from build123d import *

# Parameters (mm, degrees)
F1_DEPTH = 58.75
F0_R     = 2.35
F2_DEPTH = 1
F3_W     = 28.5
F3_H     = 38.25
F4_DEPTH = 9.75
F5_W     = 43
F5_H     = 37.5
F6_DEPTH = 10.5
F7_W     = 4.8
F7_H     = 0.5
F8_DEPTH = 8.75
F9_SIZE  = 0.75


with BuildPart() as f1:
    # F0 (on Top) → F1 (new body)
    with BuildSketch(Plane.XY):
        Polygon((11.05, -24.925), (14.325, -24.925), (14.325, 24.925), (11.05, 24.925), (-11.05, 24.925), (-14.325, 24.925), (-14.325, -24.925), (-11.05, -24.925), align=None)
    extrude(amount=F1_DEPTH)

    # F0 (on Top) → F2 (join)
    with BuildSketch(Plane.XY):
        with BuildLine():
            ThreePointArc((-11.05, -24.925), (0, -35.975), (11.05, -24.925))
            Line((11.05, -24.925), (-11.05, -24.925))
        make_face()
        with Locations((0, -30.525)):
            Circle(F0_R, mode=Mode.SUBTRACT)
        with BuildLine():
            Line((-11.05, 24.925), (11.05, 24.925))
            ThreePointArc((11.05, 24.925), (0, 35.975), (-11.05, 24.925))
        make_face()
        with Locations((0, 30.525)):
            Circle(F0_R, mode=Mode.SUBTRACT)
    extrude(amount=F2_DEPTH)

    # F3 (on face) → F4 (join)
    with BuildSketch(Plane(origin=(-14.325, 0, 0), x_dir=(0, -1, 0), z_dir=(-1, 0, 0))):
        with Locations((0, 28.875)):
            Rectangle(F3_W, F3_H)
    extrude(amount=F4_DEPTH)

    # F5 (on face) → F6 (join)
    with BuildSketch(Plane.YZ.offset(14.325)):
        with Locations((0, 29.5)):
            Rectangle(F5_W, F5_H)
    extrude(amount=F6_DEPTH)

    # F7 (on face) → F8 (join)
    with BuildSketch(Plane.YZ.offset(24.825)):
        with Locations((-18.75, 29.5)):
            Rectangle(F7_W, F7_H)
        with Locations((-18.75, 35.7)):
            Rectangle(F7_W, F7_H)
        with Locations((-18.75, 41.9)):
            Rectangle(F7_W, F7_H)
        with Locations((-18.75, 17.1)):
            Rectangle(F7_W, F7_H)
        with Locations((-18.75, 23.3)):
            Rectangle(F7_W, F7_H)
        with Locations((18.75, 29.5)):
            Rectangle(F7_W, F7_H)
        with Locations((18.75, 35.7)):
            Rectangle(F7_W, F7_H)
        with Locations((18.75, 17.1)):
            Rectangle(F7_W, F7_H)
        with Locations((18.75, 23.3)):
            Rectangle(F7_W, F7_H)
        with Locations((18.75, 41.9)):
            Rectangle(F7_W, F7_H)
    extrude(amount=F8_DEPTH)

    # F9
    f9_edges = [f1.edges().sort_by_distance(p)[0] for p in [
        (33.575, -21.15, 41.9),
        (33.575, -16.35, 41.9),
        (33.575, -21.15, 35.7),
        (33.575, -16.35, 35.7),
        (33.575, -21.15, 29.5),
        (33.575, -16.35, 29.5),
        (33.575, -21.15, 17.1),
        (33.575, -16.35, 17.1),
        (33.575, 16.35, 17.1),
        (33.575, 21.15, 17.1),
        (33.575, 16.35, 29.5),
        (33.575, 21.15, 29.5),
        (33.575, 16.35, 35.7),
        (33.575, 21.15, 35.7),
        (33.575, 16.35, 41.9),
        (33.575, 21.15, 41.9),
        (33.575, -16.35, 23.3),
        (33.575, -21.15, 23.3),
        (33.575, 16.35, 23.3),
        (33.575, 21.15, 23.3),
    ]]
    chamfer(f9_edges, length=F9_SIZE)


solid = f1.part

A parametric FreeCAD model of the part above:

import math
import FreeCAD as App
import Part
import Sketcher
from FreeCAD import Vector
Q = App.Units.Quantity


def edges_at(feature, points):
    """Names of the edges that pass closest to the given points."""
    edges = feature.Shape.Edges
    near = lambda p: min(range(len(edges)), key=lambda i: edges[i].distToShape(Part.Vertex(*p))[0])
    return sorted({f"Edge{near(p) + 1}" for p in points})

doc = App.newDocument("Part")
body = doc.addObject("PartDesign::Body", "Body")

# Sketch on XY plane
sketch1 = body.newObject("Sketcher::SketchObject", "Sketch")
sketch1.AttachmentSupport = (doc.getObject("XY_Plane"), [""])
sketch1.MapMode = "FlatFace"
sketch1.addGeometry([
    Part.LineSegment(Vector(14, -25, 0), Vector(14, 25, 0)),
    Part.LineSegment(Vector(14, 25, 0), Vector(-14, 25, 0)),
    Part.LineSegment(Vector(-14, 25, 0), Vector(-14, -25, 0)),
    Part.LineSegment(Vector(-14, -25, 0), Vector(14, -25, 0)),
], False)
sketch1.addConstraint([
    Sketcher.Constraint("Coincident", 0, 2, 1, 1),
    Sketcher.Constraint("Coincident", 1, 2, 2, 1),
    Sketcher.Constraint("Coincident", 2, 2, 3, 1),
    Sketcher.Constraint("Coincident", 3, 2, 0, 1),
    Sketcher.Constraint("Vertical", 0),
    Sketcher.Constraint("Horizontal", 1),
    Sketcher.Constraint("Vertical", 2),
    Sketcher.Constraint("Horizontal", 3),
    Sketcher.Constraint("Symmetric", 0, 2, 2, 2, -1, 1),
    Sketcher.Constraint("DistanceX", 1, 2, 1, 1, Q("28.65 mm")),
    Sketcher.Constraint("DistanceY", 0, 1, 0, 2, Q("49.85 mm")),
])
pad1 = body.newObject("PartDesign::Pad", "Pad")
pad1.Profile = sketch1
pad1.Length = 58.75

# Sketch on XY plane
sketch2 = body.newObject("Sketcher::SketchObject", "Sketch001")
sketch2.AttachmentSupport = (doc.getObject("XY_Plane"), [""])
sketch2.MapMode = "FlatFace"
sketch2.addGeometry([
    Part.ArcOfCircle(Part.Circle(Vector(0, -24.9, 0), Vector(0, 0, 1), 11.1), math.radians(180), math.radians(360)),  # 0
    Part.LineSegment(Vector(11.1, -24.9, 0), Vector(-11.1, -24.9, 0)),  # 1
    Part.Circle(Vector(0, -30.5, 0), Vector(0, 0, 1), 2.4),  # 2
    Part.LineSegment(Vector(-11.1, 24.9, 0), Vector(11.1, 24.9, 0)),  # 3
    Part.ArcOfCircle(Part.Circle(Vector(0, 24.9, 0), Vector(0, 0, 1), 11.1), math.radians(0), math.radians(180)),  # 4
    Part.Circle(Vector(0, 30.5, 0), Vector(0, 0, 1), 2.4),  # 5
], False)
sketch2.addConstraint([
    Sketcher.Constraint("Coincident", 0, 1, 1, 2),
    Sketcher.Constraint("Coincident", 1, 1, 0, 2),
    Sketcher.Constraint("Coincident", 3, 1, 4, 2),
    Sketcher.Constraint("Coincident", 4, 1, 3, 2),
    Sketcher.Constraint("Horizontal", 1),
    Sketcher.Constraint("Horizontal", 3),
    Sketcher.Constraint("Equal", 0, 4),
    Sketcher.Constraint("Equal", 2, 5),
    Sketcher.Constraint("Symmetric", 0, 3, 4, 3, -1, 1),
    Sketcher.Constraint("Symmetric", 2, 3, 5, 3, -1, 1),
    Sketcher.Constraint("Symmetric", 0, 1, 3, 1, -1),
    Sketcher.Constraint("PointOnObject", 2, 3, -2),
    Sketcher.Constraint("Horizontal", 4, 3, 3, 1),
    Sketcher.Constraint("Diameter", 2, Q("4.7 mm")),
    Sketcher.Constraint("Radius", 0, Q("11.05 mm")),
    Sketcher.Constraint("DistanceY", 2, 3, 0, 3, Q("5.6 mm")),
    Sketcher.Constraint("DistanceY", 0, 3, 4, 3, Q("49.85 mm")),
])
pad2 = body.newObject("PartDesign::Pad", "Pad001")
pad2.Profile = sketch2
pad2.Length = 1

# Sketch on YZ plane
sketch3 = body.newObject("Sketcher::SketchObject", "Sketch002")
sketch3.AttachmentSupport = (doc.getObject("YZ_Plane"), [""])
sketch3.MapMode = "FlatFace"
sketch3.AttachmentOffset = App.Placement(Vector(0, 0, -14.325), App.Rotation())
sketch3.addGeometry([
    Part.LineSegment(Vector(14, 48, 0), Vector(14, 10, 0)),
    Part.LineSegment(Vector(14, 10, 0), Vector(-14, 10, 0)),
    Part.LineSegment(Vector(-14, 10, 0), Vector(-14, 48, 0)),
    Part.LineSegment(Vector(-14, 48, 0), Vector(14, 48, 0)),
], False)
sketch3.addConstraint([
    Sketcher.Constraint("Coincident", 0, 2, 1, 1),
    Sketcher.Constraint("Coincident", 1, 2, 2, 1),
    Sketcher.Constraint("Coincident", 2, 2, 3, 1),
    Sketcher.Constraint("Coincident", 3, 2, 0, 1),
    Sketcher.Constraint("Vertical", 0),
    Sketcher.Constraint("Horizontal", 1),
    Sketcher.Constraint("Vertical", 2),
    Sketcher.Constraint("Horizontal", 3),
    Sketcher.Constraint("DistanceX", 1, 2, 1, 1, Q("28.5 mm")),
    Sketcher.Constraint("DistanceY", -1, 1, 2, 2, Q("48 mm")),
    Sketcher.Constraint("DistanceY", 0, 2, 0, 1, Q("38.25 mm")),
    Sketcher.Constraint("DistanceX", -1, 1, 0, 2, Q("14.25 mm")),
])
pad3 = body.newObject("PartDesign::Pad", "Pad002")
pad3.Profile = sketch3
pad3.Length = 9.75
pad3.Reversed = True

# Sketch on YZ plane
sketch4 = body.newObject("Sketcher::SketchObject", "Sketch003")
sketch4.AttachmentSupport = (doc.getObject("YZ_Plane"), [""])
sketch4.MapMode = "FlatFace"
sketch4.AttachmentOffset = App.Placement(Vector(0, 0, 14.325), App.Rotation())
sketch4.addGeometry([
    Part.LineSegment(Vector(-22, 48, 0), Vector(-22, 11, 0)),
    Part.LineSegment(Vector(-22, 11, 0), Vector(22, 11, 0)),
    Part.LineSegment(Vector(22, 11, 0), Vector(22, 48, 0)),
    Part.LineSegment(Vector(22, 48, 0), Vector(-22, 48, 0)),
], False)
sketch4.addConstraint([
    Sketcher.Constraint("Coincident", 0, 2, 1, 1),
    Sketcher.Constraint("Coincident", 1, 2, 2, 1),
    Sketcher.Constraint("Coincident", 2, 2, 3, 1),
    Sketcher.Constraint("Coincident", 3, 2, 0, 1),
    Sketcher.Constraint("Vertical", 0),
    Sketcher.Constraint("Horizontal", 1),
    Sketcher.Constraint("Vertical", 2),
    Sketcher.Constraint("Horizontal", 3),
    Sketcher.Constraint("DistanceX", 1, 1, 1, 2, Q("43 mm")),
    Sketcher.Constraint("DistanceY", 0, 2, 0, 1, Q("37.5 mm")),
    Sketcher.Constraint("DistanceX", 0, 2, -1, 1, Q("21.5 mm")),
    Sketcher.Constraint("DistanceY", -1, 1, 0, 2, Q("10.75 mm")),
])
pad4 = body.newObject("PartDesign::Pad", "Pad003")
pad4.Profile = sketch4
pad4.Length = 10.5

# Sketch on YZ plane
sketch5 = body.newObject("Sketcher::SketchObject", "Sketch004")
sketch5.AttachmentSupport = (doc.getObject("YZ_Plane"), [""])
sketch5.MapMode = "FlatFace"
sketch5.AttachmentOffset = App.Placement(Vector(0, 0, 24.825), App.Rotation())
sketch5.addGeometry([
    Part.LineSegment(Vector(-21.1, 29.8, 0), Vector(-21.1, 29.2, 0)),  # 0
    Part.LineSegment(Vector(-21.1, 29.2, 0), Vector(-16.4, 29.2, 0)),  # 1
    Part.LineSegment(Vector(-16.4, 29.2, 0), Vector(-16.4, 29.8, 0)),  # 2
    Part.LineSegment(Vector(-16.4, 29.8, 0), Vector(-21.1, 29.8, 0)),  # 3
    Part.LineSegment(Vector(-21.1, 36, 0), Vector(-21.1, 35.5, 0)),  # 4
    Part.LineSegment(Vector(-21.1, 35.5, 0), Vector(-16.4, 35.5, 0)),  # 5
    Part.LineSegment(Vector(-16.4, 35.5, 0), Vector(-16.4, 36, 0)),  # 6
    Part.LineSegment(Vector(-16.4, 36, 0), Vector(-21.1, 36, 0)),  # 7
    Part.LineSegment(Vector(-21.1, 42.1, 0), Vector(-21.1, 41.6, 0)),  # 8
    Part.LineSegment(Vector(-21.1, 41.6, 0), Vector(-16.4, 41.6, 0)),  # 9
    Part.LineSegment(Vector(-16.4, 41.6, 0), Vector(-16.4, 42.1, 0)),  # 10
    Part.LineSegment(Vector(-16.4, 42.1, 0), Vector(-21.1, 42.1, 0)),  # 11
    Part.LineSegment(Vector(-21.1, 17.4, 0), Vector(-21.1, 16.9, 0)),  # 12
    Part.LineSegment(Vector(-21.1, 16.9, 0), Vector(-16.4, 16.9, 0)),  # 13
    Part.LineSegment(Vector(-16.4, 16.9, 0), Vector(-16.4, 17.4, 0)),  # 14
    Part.LineSegment(Vector(-16.4, 17.4, 0), Vector(-21.1, 17.4, 0)),  # 15
    Part.LineSegment(Vector(-21.1, 23.6, 0), Vector(-21.1, 23.1, 0)),  # 16
    Part.LineSegment(Vector(-21.1, 23.1, 0), Vector(-16.4, 23.1, 0)),  # 17
    Part.LineSegment(Vector(-16.4, 23.1, 0), Vector(-16.4, 23.6, 0)),  # 18
    Part.LineSegment(Vector(-16.4, 23.6, 0), Vector(-21.1, 23.6, 0)),  # 19
    Part.LineSegment(Vector(16.4, 29.8, 0), Vector(16.4, 29.2, 0)),  # 20
    Part.LineSegment(Vector(16.4, 29.2, 0), Vector(21.1, 29.2, 0)),  # 21
    Part.LineSegment(Vector(21.1, 29.2, 0), Vector(21.1, 29.8, 0)),  # 22
    Part.LineSegment(Vector(21.1, 29.8, 0), Vector(16.4, 29.8, 0)),  # 23
    Part.LineSegment(Vector(16.4, 36, 0), Vector(16.4, 35.5, 0)),  # 24
    Part.LineSegment(Vector(16.4, 35.5, 0), Vector(21.1, 35.5, 0)),  # 25
    Part.LineSegment(Vector(21.1, 35.5, 0), Vector(21.1, 36, 0)),  # 26
    Part.LineSegment(Vector(21.1, 36, 0), Vector(16.4, 36, 0)),  # 27
    Part.LineSegment(Vector(16.4, 17.4, 0), Vector(16.4, 16.9, 0)),  # 28
    Part.LineSegment(Vector(16.4, 16.9, 0), Vector(21.1, 16.9, 0)),  # 29
    Part.LineSegment(Vector(21.1, 16.9, 0), Vector(21.1, 17.4, 0)),  # 30
    Part.LineSegment(Vector(21.1, 17.4, 0), Vector(16.4, 17.4, 0)),  # 31
    Part.LineSegment(Vector(16.4, 23.6, 0), Vector(16.4, 23.1, 0)),  # 32
    Part.LineSegment(Vector(16.4, 23.1, 0), Vector(21.1, 23.1, 0)),  # 33
    Part.LineSegment(Vector(21.1, 23.1, 0), Vector(21.1, 23.6, 0)),  # 34
    Part.LineSegment(Vector(21.1, 23.6, 0), Vector(16.4, 23.6, 0)),  # 35
    Part.LineSegment(Vector(16.4, 42.1, 0), Vector(16.4, 41.6, 0)),  # 36
    Part.LineSegment(Vector(16.4, 41.6, 0), Vector(21.1, 41.6, 0)),  # 37
    Part.LineSegment(Vector(21.1, 41.6, 0), Vector(21.1, 42.1, 0)),  # 38
    Part.LineSegment(Vector(21.1, 42.1, 0), Vector(16.4, 42.1, 0)),  # 39
], False)
sketch5.addConstraint([
    Sketcher.Constraint("Coincident", 0, 2, 1, 1),
    Sketcher.Constraint("Coincident", 1, 2, 2, 1),
    Sketcher.Constraint("Coincident", 2, 2, 3, 1),
    Sketcher.Constraint("Coincident", 3, 2, 0, 1),
    Sketcher.Constraint("Coincident", 4, 2, 5, 1),
    Sketcher.Constraint("Coincident", 5, 2, 6, 1),
    Sketcher.Constraint("Coincident", 6, 2, 7, 1),
    Sketcher.Constraint("Coincident", 7, 2, 4, 1),
    Sketcher.Constraint("Coincident", 8, 2, 9, 1),
    Sketcher.Constraint("Coincident", 9, 2, 10, 1),
    Sketcher.Constraint("Coincident", 10, 2, 11, 1),
    Sketcher.Constraint("Coincident", 11, 2, 8, 1),
    Sketcher.Constraint("Coincident", 12, 2, 13, 1),
    Sketcher.Constraint("Coincident", 13, 2, 14, 1),
    Sketcher.Constraint("Coincident", 14, 2, 15, 1),
    Sketcher.Constraint("Coincident", 15, 2, 12, 1),
    Sketcher.Constraint("Coincident", 16, 2, 17, 1),
    Sketcher.Constraint("Coincident", 17, 2, 18, 1),
    Sketcher.Constraint("Coincident", 18, 2, 19, 1),
    Sketcher.Constraint("Coincident", 19, 2, 16, 1),
    Sketcher.Constraint("Coincident", 20, 2, 21, 1),
    Sketcher.Constraint("Coincident", 21, 2, 22, 1),
    Sketcher.Constraint("Coincident", 22, 2, 23, 1),
    Sketcher.Constraint("Coincident", 23, 2, 20, 1),
    Sketcher.Constraint("Coincident", 24, 2, 25, 1),
    Sketcher.Constraint("Coincident", 25, 2, 26, 1),
    Sketcher.Constraint("Coincident", 26, 2, 27, 1),
    Sketcher.Constraint("Coincident", 27, 2, 24, 1),
    Sketcher.Constraint("Coincident", 28, 2, 29, 1),
    Sketcher.Constraint("Coincident", 29, 2, 30, 1),
    Sketcher.Constraint("Coincident", 30, 2, 31, 1),
    Sketcher.Constraint("Coincident", 31, 2, 28, 1),
    Sketcher.Constraint("Coincident", 32, 2, 33, 1),
    Sketcher.Constraint("Coincident", 33, 2, 34, 1),
    Sketcher.Constraint("Coincident", 34, 2, 35, 1),
    Sketcher.Constraint("Coincident", 35, 2, 32, 1),
    Sketcher.Constraint("Coincident", 36, 2, 37, 1),
    Sketcher.Constraint("Coincident", 37, 2, 38, 1),
    Sketcher.Constraint("Coincident", 38, 2, 39, 1),
    Sketcher.Constraint("Coincident", 39, 2, 36, 1),
    Sketcher.Constraint("Vertical", 0),
    Sketcher.Constraint("Horizontal", 1),
    Sketcher.Constraint("Vertical", 2),
    Sketcher.Constraint("Horizontal", 3),
    Sketcher.Constraint("Vertical", 4),
    Sketcher.Constraint("Horizontal", 5),
    Sketcher.Constraint("Vertical", 6),
    Sketcher.Constraint("Horizontal", 7),
    Sketcher.Constraint("Vertical", 8),
    Sketcher.Constraint("Horizontal", 9),
    Sketcher.Constraint("Vertical", 10),
    Sketcher.Constraint("Horizontal", 11),
    Sketcher.Constraint("Vertical", 12),
    Sketcher.Constraint("Horizontal", 13),
    Sketcher.Constraint("Vertical", 14),
    Sketcher.Constraint("Horizontal", 15),
    Sketcher.Constraint("Vertical", 16),
    Sketcher.Constraint("Horizontal", 17),
    Sketcher.Constraint("Vertical", 18),
    Sketcher.Constraint("Horizontal", 19),
    Sketcher.Constraint("Vertical", 20),
    Sketcher.Constraint("Horizontal", 21),
    Sketcher.Constraint("Vertical", 22),
    Sketcher.Constraint("Horizontal", 23),
    Sketcher.Constraint("Vertical", 24),
    Sketcher.Constraint("Horizontal", 25),
    Sketcher.Constraint("Vertical", 26),
    Sketcher.Constraint("Horizontal", 27),
    Sketcher.Constraint("Vertical", 28),
    Sketcher.Constraint("Horizontal", 29),
    Sketcher.Constraint("Vertical", 30),
    Sketcher.Constraint("Horizontal", 31),
    Sketcher.Constraint("Vertical", 32),
    Sketcher.Constraint("Horizontal", 33),
    Sketcher.Constraint("Vertical", 34),
    Sketcher.Constraint("Horizontal", 35),
    Sketcher.Constraint("Vertical", 36),
    Sketcher.Constraint("Horizontal", 37),
    Sketcher.Constraint("Vertical", 38),
    Sketcher.Constraint("Horizontal", 39),
    Sketcher.Constraint("Symmetric", 1, 2, 20, 2, -2),
    Sketcher.Constraint("Symmetric", 3, 2, 22, 2, -2),
    Sketcher.Constraint("Symmetric", 5, 2, 24, 2, -2),
    Sketcher.Constraint("Symmetric", 7, 2, 26, 2, -2),
    Sketcher.Constraint("Symmetric", 13, 2, 28, 2, -2),
    Sketcher.Constraint("Symmetric", 15, 2, 30, 2, -2),
    Sketcher.Constraint("Symmetric", 17, 2, 32, 2, -2),
    Sketcher.Constraint("Symmetric", 19, 2, 34, 2, -2),
    Sketcher.Constraint("Symmetric", 9, 2, 36, 2, -2),
    Sketcher.Constraint("Symmetric", 11, 2, 38, 2, -2),
    Sketcher.Constraint("Vertical", 3, 2, 4, 2),
    Sketcher.Constraint("Vertical", 2, 2, 5, 2),
    Sketcher.Constraint("Vertical", 7, 2, 8, 2),
    Sketcher.Constraint("Vertical", 6, 2, 9, 2),
    Sketcher.Constraint("Vertical", 11, 2, 12, 2),
    Sketcher.Constraint("Vertical", 10, 2, 13, 2),
    Sketcher.Constraint("Vertical", 15, 2, 16, 2),
    Sketcher.Constraint("Vertical", 14, 2, 17, 2),
    Sketcher.Constraint("Equal", 2, 4),
    Sketcher.Constraint("Equal", 6, 8),
    Sketcher.Constraint("Equal", 10, 12),
    Sketcher.Constraint("Equal", 14, 16),
    Sketcher.Constraint("DistanceX", 1, 1, 1, 2, Q("4.8 mm")),
    Sketcher.Constraint("DistanceY", 0, 2, 0, 1, Q("0.5 mm")),
    Sketcher.Constraint("DistanceY", 3, 2, 4, 2, Q("5.7 mm")),
    Sketcher.Constraint("DistanceY", 7, 2, 8, 2, Q("5.7 mm")),
    Sketcher.Constraint("DistanceY", 12, 2, 0, 2, Q("12.4 mm")),
    Sketcher.Constraint("DistanceY", 15, 2, 16, 2, Q("5.7 mm")),
    Sketcher.Constraint("DistanceX", 1, 2, 20, 2, Q("32.7 mm")),
    Sketcher.Constraint("DistanceY", -1, 1, 0, 2, Q("29.25 mm")),
])
pad5 = body.newObject("PartDesign::Pad", "Pad004")
pad5.Profile = sketch5
pad5.Length = 8.75
doc.recompute()

chamfer = body.newObject("PartDesign::Chamfer", "Chamfer")
chamfer.Base = (pad5, edges_at(pad5, [
    (33.575, -21.15, 41.9),
    (33.575, -16.35, 41.9),
    (33.575, -21.15, 35.7),
    (33.575, -16.35, 35.7),
    (33.575, -21.15, 29.5),
    (33.575, -16.35, 29.5),
    (33.575, -21.15, 17.1),
    (33.575, -16.35, 17.1),
    (33.575, 16.35, 17.1),
    (33.575, 21.15, 17.1),
    (33.575, 16.35, 29.5),
    (33.575, 21.15, 29.5),
    (33.575, 16.35, 35.7),
    (33.575, 21.15, 35.7),
    (33.575, 16.35, 41.9),
    (33.575, 21.15, 41.9),
    (33.575, -16.35, 23.3),
    (33.575, -21.15, 23.3),
    (33.575, 16.35, 23.3),
    (33.575, 21.15, 23.3),
]))
chamfer.Size = 0.75

doc.recompute()
